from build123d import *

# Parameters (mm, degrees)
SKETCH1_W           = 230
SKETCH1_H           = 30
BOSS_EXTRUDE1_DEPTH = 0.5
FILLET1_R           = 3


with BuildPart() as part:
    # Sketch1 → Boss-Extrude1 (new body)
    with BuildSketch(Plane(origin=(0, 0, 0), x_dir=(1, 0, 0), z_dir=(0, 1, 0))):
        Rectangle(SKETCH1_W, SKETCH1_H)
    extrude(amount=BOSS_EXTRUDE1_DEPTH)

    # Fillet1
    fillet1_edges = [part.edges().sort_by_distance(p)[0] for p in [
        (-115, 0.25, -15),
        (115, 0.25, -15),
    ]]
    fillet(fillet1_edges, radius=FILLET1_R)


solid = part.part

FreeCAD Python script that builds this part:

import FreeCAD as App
import Part
import Sketcher

V = App.Vector


def edges_at(feature, points):
    """Names of the edges that pass closest to the given points."""
    edges = feature.Shape.Edges
    near = lambda p: min(range(len(edges)), key=lambda i: edges[i].distToShape(Part.Vertex(*p))[0])
    return sorted({f"Edge{near(p) + 1}" for p in points})


def add_polygon(sketch, points):
    """Adds a closed chain of lines whose ends are joined by coincident constraints."""
    first, n = sketch.GeometryCount, len(points)
    for a, b in zip(points, points[1:] + points[:1]):
        sketch.addGeometry(Part.LineSegment(App.Vector(*a, 0), App.Vector(*b, 0)), False)
    for i in range(n):
        sketch.addConstraint(Sketcher.Constraint("Coincident", first + i, 2, first + (i + 1) % n, 1))

doc = App.newDocument("Part")
params = doc.addObject("Spreadsheet::Sheet", "Params")
for row, (alias, value) in enumerate([
    ("sketch1_width", "230 mm"),
    ("sketch1_height", "30 mm"),
    ("pad1_length", "0.5 mm"),
    ("fillet_radius", "3 mm"),
], start=1):
    params.set(f"A{row}", alias)
    params.set(f"B{row}", "=" + value)
    params.setAlias(f"B{row}", alias)

body = doc.addObject("PartDesign::Body", "Body")

# Sketch on XZ plane
sketch1 = doc.addObject("Sketcher::SketchObject", "Sketch")
body.addObject(sketch1)
sketch1.AttachmentSupport = (doc.XZ_Plane, [""])
sketch1.MapMode = "FlatFace"
add_polygon(sketch1, [(-115, -15), (-115, 15), (115, 15), (115, -15)])  # lines 0-3
sketch1.addConstraint([
    Sketcher.Constraint("Vertical", 0),
    Sketcher.Constraint("Horizontal", 1),
    Sketcher.Constraint("Vertical", 2),
    Sketcher.Constraint("Horizontal", 3),
    Sketcher.Constraint("Symmetric", 0, 2, 2, 2, -1, 1),
    Sketcher.Constraint("DistanceX", 1, 1, 1, 2, 230.0),
    Sketcher.Constraint("DistanceY", 0, 1, 0, 2, 30.0),
])
sketch1.setExpression("Constraints[9]", "Params.sketch1_width")
sketch1.setExpression("Constraints[10]", "Params.sketch1_height")
pad1 = doc.addObject("PartDesign::Pad", "Pad")
body.addObject(pad1)
pad1.Profile = sketch1
pad1.setExpression("Length", "Params.pad1_length")
pad1.Reversed = True
doc.recompute()

fillet = doc.addObject("PartDesign::Fillet", "Fillet")
body.addObject(fillet)
fillet.Base = (pad1, edges_at(pad1, [(-115, 0.25, -15), (115, 0.25, -15)]))
fillet.setExpression("Radius", "Params.fillet_radius")

doc.recompute()
